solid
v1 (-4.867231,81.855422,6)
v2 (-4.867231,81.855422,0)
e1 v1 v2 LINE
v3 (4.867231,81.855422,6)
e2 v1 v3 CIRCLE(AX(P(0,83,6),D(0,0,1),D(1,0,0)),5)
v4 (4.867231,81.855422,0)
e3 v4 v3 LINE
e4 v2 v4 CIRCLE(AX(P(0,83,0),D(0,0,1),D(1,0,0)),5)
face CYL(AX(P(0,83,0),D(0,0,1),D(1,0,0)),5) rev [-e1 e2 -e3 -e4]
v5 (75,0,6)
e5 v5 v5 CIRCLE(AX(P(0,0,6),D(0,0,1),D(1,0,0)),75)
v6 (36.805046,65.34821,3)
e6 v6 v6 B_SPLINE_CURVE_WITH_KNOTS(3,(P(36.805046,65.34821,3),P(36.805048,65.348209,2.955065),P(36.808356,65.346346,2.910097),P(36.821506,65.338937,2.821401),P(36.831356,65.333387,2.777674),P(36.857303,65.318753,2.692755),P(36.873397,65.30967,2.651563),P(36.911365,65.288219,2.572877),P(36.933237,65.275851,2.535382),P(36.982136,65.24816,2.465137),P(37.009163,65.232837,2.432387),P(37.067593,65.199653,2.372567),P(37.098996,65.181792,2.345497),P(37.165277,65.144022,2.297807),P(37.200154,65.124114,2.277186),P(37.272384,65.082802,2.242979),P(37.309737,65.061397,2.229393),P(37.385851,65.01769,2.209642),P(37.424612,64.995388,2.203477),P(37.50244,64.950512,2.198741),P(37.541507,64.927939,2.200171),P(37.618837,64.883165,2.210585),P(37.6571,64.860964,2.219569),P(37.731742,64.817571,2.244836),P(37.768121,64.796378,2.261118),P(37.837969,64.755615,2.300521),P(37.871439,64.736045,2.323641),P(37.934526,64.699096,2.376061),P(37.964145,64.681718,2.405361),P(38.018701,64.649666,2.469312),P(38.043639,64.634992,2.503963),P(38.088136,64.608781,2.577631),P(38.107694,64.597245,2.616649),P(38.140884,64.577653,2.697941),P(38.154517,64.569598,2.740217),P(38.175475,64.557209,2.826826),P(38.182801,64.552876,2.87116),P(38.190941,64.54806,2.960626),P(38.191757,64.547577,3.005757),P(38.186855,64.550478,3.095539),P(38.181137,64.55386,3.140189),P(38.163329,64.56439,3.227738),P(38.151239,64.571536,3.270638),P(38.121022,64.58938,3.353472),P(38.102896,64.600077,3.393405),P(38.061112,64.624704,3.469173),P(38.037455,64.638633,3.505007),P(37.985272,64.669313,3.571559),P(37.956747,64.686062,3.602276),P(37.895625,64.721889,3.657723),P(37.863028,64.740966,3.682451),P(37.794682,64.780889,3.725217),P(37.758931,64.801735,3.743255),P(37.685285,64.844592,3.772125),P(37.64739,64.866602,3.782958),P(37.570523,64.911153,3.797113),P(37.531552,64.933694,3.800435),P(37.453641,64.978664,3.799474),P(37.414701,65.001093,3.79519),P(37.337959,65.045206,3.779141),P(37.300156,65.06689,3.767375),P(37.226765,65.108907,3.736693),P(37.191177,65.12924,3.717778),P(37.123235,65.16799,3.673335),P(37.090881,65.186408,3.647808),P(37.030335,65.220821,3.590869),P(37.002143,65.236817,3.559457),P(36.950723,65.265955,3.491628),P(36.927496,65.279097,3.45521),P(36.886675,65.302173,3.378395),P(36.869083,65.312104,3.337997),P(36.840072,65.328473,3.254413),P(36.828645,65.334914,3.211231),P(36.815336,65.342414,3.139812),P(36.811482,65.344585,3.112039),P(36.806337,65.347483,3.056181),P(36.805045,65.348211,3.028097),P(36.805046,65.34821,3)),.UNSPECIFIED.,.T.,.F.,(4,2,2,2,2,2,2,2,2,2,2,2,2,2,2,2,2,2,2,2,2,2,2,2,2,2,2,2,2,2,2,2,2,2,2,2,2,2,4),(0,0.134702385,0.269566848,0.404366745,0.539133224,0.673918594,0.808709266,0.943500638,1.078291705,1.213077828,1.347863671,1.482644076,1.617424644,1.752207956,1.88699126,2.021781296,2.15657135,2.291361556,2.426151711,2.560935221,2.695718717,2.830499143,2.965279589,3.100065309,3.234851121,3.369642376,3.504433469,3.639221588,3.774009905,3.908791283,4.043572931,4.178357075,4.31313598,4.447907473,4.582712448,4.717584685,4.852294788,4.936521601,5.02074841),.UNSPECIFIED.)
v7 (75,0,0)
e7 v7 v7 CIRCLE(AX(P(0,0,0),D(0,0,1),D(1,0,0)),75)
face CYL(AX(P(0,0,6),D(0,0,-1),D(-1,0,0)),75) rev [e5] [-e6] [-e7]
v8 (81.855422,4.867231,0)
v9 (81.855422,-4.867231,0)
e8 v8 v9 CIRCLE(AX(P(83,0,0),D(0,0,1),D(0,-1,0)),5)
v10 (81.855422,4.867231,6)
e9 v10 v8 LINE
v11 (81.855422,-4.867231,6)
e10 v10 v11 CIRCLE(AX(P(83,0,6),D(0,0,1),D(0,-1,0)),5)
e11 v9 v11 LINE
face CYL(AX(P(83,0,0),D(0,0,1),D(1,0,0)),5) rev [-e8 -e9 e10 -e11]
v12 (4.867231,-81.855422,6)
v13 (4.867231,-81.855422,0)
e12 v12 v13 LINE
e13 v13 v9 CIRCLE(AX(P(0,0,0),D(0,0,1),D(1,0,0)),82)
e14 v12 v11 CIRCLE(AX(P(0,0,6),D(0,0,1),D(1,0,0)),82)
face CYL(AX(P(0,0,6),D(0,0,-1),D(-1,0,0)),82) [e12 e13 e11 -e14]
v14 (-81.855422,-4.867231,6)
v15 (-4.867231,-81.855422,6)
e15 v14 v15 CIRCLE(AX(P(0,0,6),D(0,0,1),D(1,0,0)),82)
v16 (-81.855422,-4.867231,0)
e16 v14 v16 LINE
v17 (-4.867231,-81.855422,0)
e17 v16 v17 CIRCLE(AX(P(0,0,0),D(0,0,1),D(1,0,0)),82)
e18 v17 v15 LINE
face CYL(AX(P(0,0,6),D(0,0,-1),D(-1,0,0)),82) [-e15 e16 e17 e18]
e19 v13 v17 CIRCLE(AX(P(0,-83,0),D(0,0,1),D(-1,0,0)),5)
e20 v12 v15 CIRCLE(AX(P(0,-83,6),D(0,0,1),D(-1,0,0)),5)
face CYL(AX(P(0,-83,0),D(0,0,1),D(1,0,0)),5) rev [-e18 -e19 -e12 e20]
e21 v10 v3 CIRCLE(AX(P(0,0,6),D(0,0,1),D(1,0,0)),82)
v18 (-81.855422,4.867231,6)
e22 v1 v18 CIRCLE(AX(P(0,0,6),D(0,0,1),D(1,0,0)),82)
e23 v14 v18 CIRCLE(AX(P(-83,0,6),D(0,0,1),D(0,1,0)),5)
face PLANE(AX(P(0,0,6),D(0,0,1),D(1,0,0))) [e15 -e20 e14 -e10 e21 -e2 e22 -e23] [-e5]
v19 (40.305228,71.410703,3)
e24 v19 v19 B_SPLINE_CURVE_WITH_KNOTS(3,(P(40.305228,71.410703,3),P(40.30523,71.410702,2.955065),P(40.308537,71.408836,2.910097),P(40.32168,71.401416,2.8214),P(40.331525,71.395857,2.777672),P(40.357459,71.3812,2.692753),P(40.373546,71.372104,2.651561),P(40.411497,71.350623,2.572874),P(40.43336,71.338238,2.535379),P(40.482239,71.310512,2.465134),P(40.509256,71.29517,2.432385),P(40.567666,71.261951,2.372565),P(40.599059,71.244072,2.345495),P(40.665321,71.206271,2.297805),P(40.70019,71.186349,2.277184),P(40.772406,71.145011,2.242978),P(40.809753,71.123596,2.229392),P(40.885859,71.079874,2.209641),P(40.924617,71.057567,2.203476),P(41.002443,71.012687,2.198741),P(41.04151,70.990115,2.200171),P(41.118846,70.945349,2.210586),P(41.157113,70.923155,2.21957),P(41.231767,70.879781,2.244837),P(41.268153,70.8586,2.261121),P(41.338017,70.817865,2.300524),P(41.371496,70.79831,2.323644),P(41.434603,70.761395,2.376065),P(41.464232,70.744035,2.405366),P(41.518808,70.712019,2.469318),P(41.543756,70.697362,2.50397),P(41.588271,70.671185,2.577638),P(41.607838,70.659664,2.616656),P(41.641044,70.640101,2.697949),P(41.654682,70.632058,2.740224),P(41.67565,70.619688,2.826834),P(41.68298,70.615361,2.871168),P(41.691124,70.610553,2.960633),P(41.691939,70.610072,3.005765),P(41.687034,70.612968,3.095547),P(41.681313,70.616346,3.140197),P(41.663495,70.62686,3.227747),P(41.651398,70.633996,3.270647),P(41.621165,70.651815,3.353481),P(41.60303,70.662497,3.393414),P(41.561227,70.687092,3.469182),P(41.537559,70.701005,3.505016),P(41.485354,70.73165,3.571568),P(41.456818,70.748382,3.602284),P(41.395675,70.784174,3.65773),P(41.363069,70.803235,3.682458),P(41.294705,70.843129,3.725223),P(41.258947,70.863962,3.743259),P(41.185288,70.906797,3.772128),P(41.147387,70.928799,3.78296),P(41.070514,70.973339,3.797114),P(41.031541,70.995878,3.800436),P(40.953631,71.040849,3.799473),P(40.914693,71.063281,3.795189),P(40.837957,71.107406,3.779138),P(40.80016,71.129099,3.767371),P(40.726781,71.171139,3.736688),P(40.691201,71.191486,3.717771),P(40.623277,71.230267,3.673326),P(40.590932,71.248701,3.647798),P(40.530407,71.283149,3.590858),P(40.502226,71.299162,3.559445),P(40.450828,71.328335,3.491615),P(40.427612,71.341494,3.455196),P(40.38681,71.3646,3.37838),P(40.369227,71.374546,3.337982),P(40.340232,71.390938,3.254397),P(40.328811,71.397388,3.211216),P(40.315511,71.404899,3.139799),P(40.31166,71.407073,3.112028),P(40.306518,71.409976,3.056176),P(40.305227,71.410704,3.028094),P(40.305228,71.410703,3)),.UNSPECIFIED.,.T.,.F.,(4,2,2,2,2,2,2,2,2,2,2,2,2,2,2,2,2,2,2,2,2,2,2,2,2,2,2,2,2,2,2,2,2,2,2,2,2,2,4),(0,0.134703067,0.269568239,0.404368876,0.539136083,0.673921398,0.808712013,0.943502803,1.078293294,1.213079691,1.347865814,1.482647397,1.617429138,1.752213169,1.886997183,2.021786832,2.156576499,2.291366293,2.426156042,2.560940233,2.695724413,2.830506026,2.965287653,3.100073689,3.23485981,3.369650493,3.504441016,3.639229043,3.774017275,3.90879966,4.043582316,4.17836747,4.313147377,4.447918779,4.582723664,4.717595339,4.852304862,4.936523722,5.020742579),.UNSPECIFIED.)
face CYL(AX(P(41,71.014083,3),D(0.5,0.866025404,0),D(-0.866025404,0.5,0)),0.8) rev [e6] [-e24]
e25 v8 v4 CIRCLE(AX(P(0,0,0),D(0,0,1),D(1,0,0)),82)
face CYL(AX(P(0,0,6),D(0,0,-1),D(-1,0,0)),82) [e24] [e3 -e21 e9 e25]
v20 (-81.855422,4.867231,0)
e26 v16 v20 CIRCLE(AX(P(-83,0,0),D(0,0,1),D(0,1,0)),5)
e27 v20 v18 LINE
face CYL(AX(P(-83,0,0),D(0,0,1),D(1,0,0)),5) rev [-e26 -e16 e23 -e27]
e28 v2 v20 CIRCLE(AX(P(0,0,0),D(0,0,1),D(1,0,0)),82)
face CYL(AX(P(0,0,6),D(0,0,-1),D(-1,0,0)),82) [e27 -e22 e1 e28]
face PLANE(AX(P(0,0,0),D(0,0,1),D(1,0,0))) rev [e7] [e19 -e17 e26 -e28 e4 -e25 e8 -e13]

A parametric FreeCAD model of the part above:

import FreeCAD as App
import Part
import Sketcher
from FreeCAD import Vector
Q = App.Units.Quantity

doc = App.newDocument("Part")
body = doc.addObject("PartDesign::Body", "Body")

sketch1 = body.newObject("Sketcher::SketchObject", "Sketch")
sketch1.AttachmentSupport = (doc.getObject("XY_Plane"), [""])
sketch1.MapMode = "FlatFace"
sketch1.addGeometry([
    Part.Circle(Vector(0, 0, 0), Vector(0, 0, 1), 82),
    Part.Circle(Vector(0, 0, 0), Vector(0, 0, 1), 75),
], False)
sketch1.addConstraint([
    Sketcher.Constraint("Coincident", 0, 3, -1, 1),
    Sketcher.Constraint("Coincident", 1, 3, -1, 1),
    Sketcher.Constraint("Diameter", 0, Q("164 mm")),
    Sketcher.Constraint("Diameter", 1, Q("150 mm")),
])
pad1 = body.newObject("PartDesign::Pad", "Pad")
pad1.Profile = sketch1
pad1.Length = 6

sketch2 = body.newObject("Sketcher::SketchObject", "Sketch001")
sketch2.AttachmentSupport = (doc.getObject("XY_Plane"), [""])
sketch2.MapMode = "FlatFace"
sketch2.AttachmentOffset = App.Placement(Vector(0, 0, 6), App.Rotation())
sketch2.addGeometry(Part.Circle(Vector(0, 83, 0), Vector(0, 0, 1), 5), False)
sketch2.addConstraint([
    Sketcher.Constraint("PointOnObject", 0, 3, -2),
    Sketcher.Constraint("Diameter", 0, Q("10 mm")),
    Sketcher.Constraint("DistanceY", -1, 1, 0, 3, Q("83 mm")),
])
pocket1 = body.newObject("PartDesign::Pocket", "Pocket")
pocket1.Profile = sketch2
pocket1.Type = "ThroughAll"
doc.recompute()

polarpattern = body.newObject("PartDesign::PolarPattern", "PolarPattern")
polarpattern.Originals = [pocket1]
polarpattern.Axis = (doc.getObject("Z_Axis"), [""])
polarpattern.Angle = 360
polarpattern.Occurrences = 4
body.Tip = polarpattern

sketch3 = body.newObject("Sketcher::SketchObject", "Sketch002")
sketch3.Placement = App.Placement(Vector(41, 71.014083, 0), App.Rotation(Vector(0.866025404, -0.5, 0), Vector(0, 0, -1), Vector(0.5, 0.866025404, 0), "ZXY"))
sketch3.addGeometry(Part.Circle(Vector(0, -3, 0), Vector(0, 0, 1), 0.8), False)
sketch3.addConstraint([
    Sketcher.Constraint("PointOnObject", 0, 3, -2),
    Sketcher.Constraint("Diameter", 0, Q("1.6 mm")),
    Sketcher.Constraint("DistanceY", 0, 3, -1, 1, Q("3 mm")),
])
doc.recompute()
hole = body.newObject("PartDesign::Hole", "Hole")
hole.Profile = sketch3
hole.ThreadType = "None"
hole.Diameter = 1.6
hole.DepthType = "Dimension"
hole.Depth = 10
hole.DrillPoint = "Angled"
hole.DrillPointAngle = 118

doc.recompute()
